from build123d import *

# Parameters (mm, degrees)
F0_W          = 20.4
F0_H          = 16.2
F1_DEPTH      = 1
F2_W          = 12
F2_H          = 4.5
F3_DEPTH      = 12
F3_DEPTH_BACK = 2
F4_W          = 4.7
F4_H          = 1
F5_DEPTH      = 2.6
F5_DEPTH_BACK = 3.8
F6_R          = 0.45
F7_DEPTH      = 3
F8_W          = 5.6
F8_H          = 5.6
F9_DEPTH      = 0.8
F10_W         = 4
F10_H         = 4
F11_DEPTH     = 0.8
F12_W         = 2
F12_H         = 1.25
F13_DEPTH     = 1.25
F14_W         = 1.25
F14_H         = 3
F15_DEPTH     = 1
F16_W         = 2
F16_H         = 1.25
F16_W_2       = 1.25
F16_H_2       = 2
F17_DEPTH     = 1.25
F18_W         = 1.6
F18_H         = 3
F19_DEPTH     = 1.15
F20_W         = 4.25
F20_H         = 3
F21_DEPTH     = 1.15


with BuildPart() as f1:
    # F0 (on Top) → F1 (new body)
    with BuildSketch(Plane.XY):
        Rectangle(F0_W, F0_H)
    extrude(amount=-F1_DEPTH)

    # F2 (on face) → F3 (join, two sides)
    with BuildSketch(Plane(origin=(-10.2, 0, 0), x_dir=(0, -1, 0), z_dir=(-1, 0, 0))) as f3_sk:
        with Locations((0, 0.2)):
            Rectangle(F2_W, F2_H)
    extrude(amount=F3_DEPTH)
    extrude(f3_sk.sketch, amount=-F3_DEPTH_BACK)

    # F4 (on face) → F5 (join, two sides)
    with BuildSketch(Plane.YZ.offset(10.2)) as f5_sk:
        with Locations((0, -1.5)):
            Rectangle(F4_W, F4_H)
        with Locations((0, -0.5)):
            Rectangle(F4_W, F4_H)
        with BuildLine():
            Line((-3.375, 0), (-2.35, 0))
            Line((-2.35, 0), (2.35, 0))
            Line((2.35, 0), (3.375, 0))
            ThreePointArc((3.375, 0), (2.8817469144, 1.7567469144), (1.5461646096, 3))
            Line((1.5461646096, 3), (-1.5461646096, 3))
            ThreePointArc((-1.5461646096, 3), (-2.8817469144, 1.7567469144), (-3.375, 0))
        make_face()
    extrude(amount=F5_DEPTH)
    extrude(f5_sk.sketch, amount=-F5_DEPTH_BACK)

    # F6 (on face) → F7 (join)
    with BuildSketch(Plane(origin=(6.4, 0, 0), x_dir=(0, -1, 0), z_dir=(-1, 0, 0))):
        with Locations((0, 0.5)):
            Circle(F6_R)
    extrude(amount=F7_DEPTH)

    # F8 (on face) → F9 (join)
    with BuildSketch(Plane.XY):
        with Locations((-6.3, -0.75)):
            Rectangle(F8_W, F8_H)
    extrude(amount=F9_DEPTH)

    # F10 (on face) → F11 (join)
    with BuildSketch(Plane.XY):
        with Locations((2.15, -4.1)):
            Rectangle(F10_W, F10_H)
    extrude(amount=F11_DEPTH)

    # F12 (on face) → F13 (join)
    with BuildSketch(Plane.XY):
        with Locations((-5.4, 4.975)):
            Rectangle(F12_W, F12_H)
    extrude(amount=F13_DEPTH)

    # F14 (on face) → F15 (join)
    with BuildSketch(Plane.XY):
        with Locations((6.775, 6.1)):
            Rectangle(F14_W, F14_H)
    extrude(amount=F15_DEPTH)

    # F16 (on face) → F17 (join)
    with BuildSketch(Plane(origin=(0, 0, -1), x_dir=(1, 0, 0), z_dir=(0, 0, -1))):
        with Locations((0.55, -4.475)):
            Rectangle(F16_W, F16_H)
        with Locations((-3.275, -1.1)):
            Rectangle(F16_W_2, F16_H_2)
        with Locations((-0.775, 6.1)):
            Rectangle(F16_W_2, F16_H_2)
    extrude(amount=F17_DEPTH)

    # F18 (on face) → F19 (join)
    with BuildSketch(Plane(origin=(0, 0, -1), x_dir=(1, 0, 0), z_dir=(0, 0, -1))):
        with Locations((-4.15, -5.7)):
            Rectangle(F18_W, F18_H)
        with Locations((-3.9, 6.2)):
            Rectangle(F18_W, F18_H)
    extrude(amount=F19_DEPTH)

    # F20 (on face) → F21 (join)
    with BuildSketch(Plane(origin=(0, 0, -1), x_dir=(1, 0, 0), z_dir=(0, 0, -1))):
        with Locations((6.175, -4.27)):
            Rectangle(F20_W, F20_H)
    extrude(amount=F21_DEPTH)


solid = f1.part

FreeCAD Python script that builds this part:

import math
import FreeCAD as App
import Part
import Sketcher
from FreeCAD import Vector

doc = App.newDocument("Part")
body = doc.addObject("PartDesign::Body", "Body")

sketch1 = body.newObject("Sketcher::SketchObject", "Sketch")
sketch1.AttachmentSupport = (doc.getObject("XY_Plane"), [""])
sketch1.MapMode = "FlatFace"
sketch1.addGeometry([
    Part.LineSegment(Vector(-10, 8, 0), Vector(-10, -8, 0)),
    Part.LineSegment(Vector(-10, -8, 0), Vector(10, -8, 0)),
    Part.LineSegment(Vector(10, -8, 0), Vector(10, 8, 0)),
    Part.LineSegment(Vector(10, 8, 0), Vector(-10, 8, 0)),
], False)
sketch1.addConstraint([
    Sketcher.Constraint("Coincident", 0, 2, 1, 1),
    Sketcher.Constraint("Coincident", 1, 2, 2, 1),
    Sketcher.Constraint("Coincident", 2, 2, 3, 1),
    Sketcher.Constraint("Coincident", 3, 2, 0, 1),
    Sketcher.Constraint("Vertical", 0),
    Sketcher.Constraint("Horizontal", 1),
    Sketcher.Constraint("Vertical", 2),
    Sketcher.Constraint("Horizontal", 3),
    Sketcher.Constraint("Symmetric", 0, 2, 2, 2, -1, 1),
    Sketcher.Constraint("DistanceX", 1, 1, 1, 2, 20.4),
    Sketcher.Constraint("DistanceY", 0, 2, 0, 1, 16.2),
])
pad1 = body.newObject("PartDesign::Pad", "Pad")
pad1.Profile = sketch1
pad1.Length = 1
pad1.Reversed = True

sketch2 = body.newObject("Sketcher::SketchObject", "Sketch001")
sketch2.AttachmentSupport = (doc.getObject("YZ_Plane"), [""])
sketch2.MapMode = "FlatFace"
sketch2.AttachmentOffset = App.Placement(Vector(0, 0, -10.2), App.Rotation())
sketch2.addGeometry([
    Part.LineSegment(Vector(6, 2.5, 0), Vector(6, -2, 0)),
    Part.LineSegment(Vector(6, -2, 0), Vector(-6, -2, 0)),
    Part.LineSegment(Vector(-6, -2, 0), Vector(-6, 2.5, 0)),
    Part.LineSegment(Vector(-6, 2.5, 0), Vector(6, 2.5, 0)),
], False)
sketch2.addConstraint([
    Sketcher.Constraint("Coincident", 0, 2, 1, 1),
    Sketcher.Constraint("Coincident", 1, 2, 2, 1),
    Sketcher.Constraint("Coincident", 2, 2, 3, 1),
    Sketcher.Constraint("Coincident", 3, 2, 0, 1),
    Sketcher.Constraint("Vertical", 0),
    Sketcher.Constraint("Horizontal", 1),
    Sketcher.Constraint("Vertical", 2),
    Sketcher.Constraint("Horizontal", 3),
    Sketcher.Constraint("DistanceX", 1, 2, 1, 1, 12.0),
    Sketcher.Constraint("DistanceY", 0, 2, 0, 1, 4.5),
    Sketcher.Constraint("DistanceX", -1, 1, 0, 2, 6.0),
    Sketcher.Constraint("DistanceY", 0, 2, -1, 1, 2.05),
])
pad2 = body.newObject("PartDesign::Pad", "Pad001")
pad2.Profile = sketch2
pad2.Type = "TwoLengths"
pad2.Length = 12
pad2.Length2 = 2
pad2.Reversed = True

sketch3 = body.newObject("Sketcher::SketchObject", "Sketch002")
sketch3.AttachmentSupport = (doc.getObject("YZ_Plane"), [""])
sketch3.MapMode = "FlatFace"
sketch3.AttachmentOffset = App.Placement(Vector(0, 0, 10.2), App.Rotation())
sketch3.addGeometry([
    Part.LineSegment(Vector(-2.4, -2, 0), Vector(2.4, -2, 0)),
    Part.LineSegment(Vector(2.4, -2, 0), Vector(2.4, 0, 0)),
    Part.LineSegment(Vector(2.4, 0, 0), Vector(3.4, 0, 0)),
    Part.ArcOfCircle(Part.Circle(Vector(0, 0, 0), Vector(0, 0, 1), 3.4), math.radians(0), math.radians(63)),
    Part.LineSegment(Vector(1.5, 3, 0), Vector(-1.5, 3, 0)),
    Part.ArcOfCircle(Part.Circle(Vector(0, 0, 0), Vector(0, 0, 1), 3.4), math.radians(117), math.radians(180)),
    Part.LineSegment(Vector(-3.4, 0, 0), Vector(-2.4, 0, 0)),
    Part.LineSegment(Vector(-2.4, 0, 0), Vector(-2.4, -2, 0)),
], False)
sketch3.addConstraint([
    Sketcher.Constraint("Coincident", 0, 2, 1, 1),
    Sketcher.Constraint("Coincident", 1, 2, 2, 1),
    Sketcher.Constraint("Coincident", 2, 2, 3, 1),
    Sketcher.Constraint("Coincident", 3, 2, 4, 1),
    Sketcher.Constraint("Coincident", 4, 2, 5, 1),
    Sketcher.Constraint("Coincident", 5, 2, 6, 1),
    Sketcher.Constraint("Coincident", 6, 2, 7, 1),
    Sketcher.Constraint("Coincident", 7, 2, 0, 1),
    Sketcher.Constraint("Horizontal", 0),
    Sketcher.Constraint("Vertical", 1),
    Sketcher.Constraint("Horizontal", 2),
    Sketcher.Constraint("Horizontal", 4),
    Sketcher.Constraint("Horizontal", 6),
    Sketcher.Constraint("Vertical", 7),
    Sketcher.Constraint("Coincident", 3, 3, -1, 1),
    Sketcher.Constraint("Coincident", 5, 3, -1, 1),
    Sketcher.Constraint("Equal", 3, 5),
    Sketcher.Constraint("Symmetric", 1, 2, 6, 2, -1, 1),
    Sketcher.Constraint("PointOnObject", 1, 2, -1),
    Sketcher.Constraint("DistanceY", 1, 1, 1, 2, 2.0),
    Sketcher.Constraint("DistanceX", 0, 1, 0, 2, 4.7),
    Sketcher.Constraint("DistanceY", -1, 1, 3, 2, 3.0),
    Sketcher.Constraint("Radius", 3, 3.375),
])
pad3 = body.newObject("PartDesign::Pad", "Pad002")
pad3.Profile = sketch3
pad3.Type = "TwoLengths"
pad3.Length = 2.6
pad3.Length2 = 3.8

sketch4 = body.newObject("Sketcher::SketchObject", "Sketch003")
sketch4.AttachmentSupport = (doc.getObject("YZ_Plane"), [""])
sketch4.MapMode = "FlatFace"
sketch4.AttachmentOffset = App.Placement(Vector(0, 0, 6.4), App.Rotation())
sketch4.addGeometry(Part.Circle(Vector(0, 0.5, 0), Vector(0, 0, 1), 0.45), False)
sketch4.addConstraint([
    Sketcher.Constraint("PointOnObject", 0, 3, -2),
    Sketcher.Constraint("Diameter", 0, 0.9),
    Sketcher.Constraint("DistanceY", -1, 1, 0, 3, 0.5),
])
pad4 = body.newObject("PartDesign::Pad", "Pad003")
pad4.Profile = sketch4
pad4.Length = 3
pad4.Reversed = True

sketch5 = body.newObject("Sketcher::SketchObject", "Sketch004")
sketch5.AttachmentSupport = (doc.getObject("XY_Plane"), [""])
sketch5.MapMode = "FlatFace"
sketch5.addGeometry([
    Part.LineSegment(Vector(-9, 2, 0), Vector(-9, -4, 0)),
    Part.LineSegment(Vector(-9, -4, 0), Vector(-4, -4, 0)),
    Part.LineSegment(Vector(-4, -4, 0), Vector(-4, 2, 0)),
    Part.LineSegment(Vector(-4, 2, 0), Vector(-9, 2, 0)),
], False)
sketch5.addConstraint([
    Sketcher.Constraint("Coincident", 0, 2, 1, 1),
    Sketcher.Constraint("Coincident", 1, 2, 2, 1),
    Sketcher.Constraint("Coincident", 2, 2, 3, 1),
    Sketcher.Constraint("Coincident", 3, 2, 0, 1),
    Sketcher.Constraint("Vertical", 0),
    Sketcher.Constraint("Horizontal", 1),
    Sketcher.Constraint("Vertical", 2),
    Sketcher.Constraint("Horizontal", 3),
    Sketcher.Constraint("Equal", 3, 0),
    Sketcher.Constraint("DistanceX", 1, 1, 1, 2, 5.6),
    Sketcher.Constraint("DistanceX", 0, 2, -1, 1, 9.1),
    Sketcher.Constraint("DistanceY", 0, 2, -1, 1, 3.55),
])
pad5 = body.newObject("PartDesign::Pad", "Pad004")
pad5.Profile = sketch5
pad5.Length = 0.8

sketch6 = body.newObject("Sketcher::SketchObject", "Sketch005")
sketch6.AttachmentSupport = (doc.getObject("XY_Plane"), [""])
sketch6.MapMode = "FlatFace"
sketch6.addGeometry([
    Part.LineSegment(Vector(0.1, -2.1, 0), Vector(0.1, -6.1, 0)),
    Part.LineSegment(Vector(0.1, -6.1, 0), Vector(4.2, -6.1, 0)),
    Part.LineSegment(Vector(4.2, -6.1, 0), Vector(4.2, -2.1, 0)),
    Part.LineSegment(Vector(4.2, -2.1, 0), Vector(0.1, -2.1, 0)),
], False)
sketch6.addConstraint([
    Sketcher.Constraint("Coincident", 0, 2, 1, 1),
    Sketcher.Constraint("Coincident", 1, 2, 2, 1),
    Sketcher.Constraint("Coincident", 2, 2, 3, 1),
    Sketcher.Constraint("Coincident", 3, 2, 0, 1),
    Sketcher.Constraint("Vertical", 0),
    Sketcher.Constraint("Horizontal", 1),
    Sketcher.Constraint("Vertical", 2),
    Sketcher.Constraint("Horizontal", 3),
    Sketcher.Constraint("Equal", 3, 0),
    Sketcher.Constraint("DistanceX", 1, 1, 1, 2, 4.0),
    Sketcher.Constraint("DistanceY", 0, 2, -1, 1, 6.1),
    Sketcher.Constraint("DistanceX", -1, 1, 0, 2, 0.15),
])
pad6 = body.newObject("PartDesign::Pad", "Pad005")
pad6.Profile = sketch6
pad6.Length = 0.8

sketch7 = body.newObject("Sketcher::SketchObject", "Sketch006")
sketch7.AttachmentSupport = (doc.getObject("XY_Plane"), [""])
sketch7.MapMode = "FlatFace"
sketch7.addGeometry([
    Part.LineSegment(Vector(-6.4, 5.6, 0), Vector(-6.4, 4.3, 0)),
    Part.LineSegment(Vector(-6.4, 4.3, 0), Vector(-4.4, 4.3, 0)),
    Part.LineSegment(Vector(-4.4, 4.3, 0), Vector(-4.4, 5.6, 0)),
    Part.LineSegment(Vector(-4.4, 5.6, 0), Vector(-6.4, 5.6, 0)),
], False)
sketch7.addConstraint([
    Sketcher.Constraint("Coincident", 0, 2, 1, 1),
    Sketcher.Constraint("Coincident", 1, 2, 2, 1),
    Sketcher.Constraint("Coincident", 2, 2, 3, 1),
    Sketcher.Constraint("Coincident", 3, 2, 0, 1),
    Sketcher.Constraint("Vertical", 0),
    Sketcher.Constraint("Horizontal", 1),
    Sketcher.Constraint("Vertical", 2),
    Sketcher.Constraint("Horizontal", 3),
    Sketcher.Constraint("DistanceX", 1, 1, 1, 2, 2.0),
    Sketcher.Constraint("DistanceY", 0, 2, 0, 1, 1.25),
    Sketcher.Constraint("DistanceX", 0, 2, -1, 1, 6.4),
    Sketcher.Constraint("DistanceY", -1, 1, 2, 2, 5.6),
])
pad7 = body.newObject("PartDesign::Pad", "Pad006")
pad7.Profile = sketch7
pad7.Length = 1.25

sketch8 = body.newObject("Sketcher::SketchObject", "Sketch007")
sketch8.AttachmentSupport = (doc.getObject("XY_Plane"), [""])
sketch8.MapMode = "FlatFace"
sketch8.addGeometry([
    Part.LineSegment(Vector(6.2, 7.6, 0), Vector(6.2, 4.6, 0)),
    Part.LineSegment(Vector(6.2, 4.6, 0), Vector(7.4, 4.6, 0)),
    Part.LineSegment(Vector(7.4, 4.6, 0), Vector(7.4, 7.6, 0)),
    Part.LineSegment(Vector(7.4, 7.6, 0), Vector(6.2, 7.6, 0)),
], False)
sketch8.addConstraint([
    Sketcher.Constraint("Coincident", 0, 2, 1, 1),
    Sketcher.Constraint("Coincident", 1, 2, 2, 1),
    Sketcher.Constraint("Coincident", 2, 2, 3, 1),
    Sketcher.Constraint("Coincident", 3, 2, 0, 1),
    Sketcher.Constraint("Vertical", 0),
    Sketcher.Constraint("Horizontal", 1),
    Sketcher.Constraint("Vertical", 2),
    Sketcher.Constraint("Horizontal", 3),
    Sketcher.Constraint("DistanceY", 0, 2, 0, 1, 3.0),
    Sketcher.Constraint("DistanceX", 1, 1, 1, 2, 1.25),
    Sketcher.Constraint("DistanceY", -1, 1, 0, 2, 4.6),
    Sketcher.Constraint("DistanceX", -1, 1, 1, 2, 7.4),
])
pad8 = body.newObject("PartDesign::Pad", "Pad007")
pad8.Profile = sketch8
pad8.Length = 1

sketch9 = body.newObject("Sketcher::SketchObject", "Sketch008")
sketch9.AttachmentSupport = (doc.getObject("XY_Plane"), [""])
sketch9.MapMode = "FlatFace"
sketch9.AttachmentOffset = App.Placement(Vector(0, 0, -1), App.Rotation())
sketch9.addGeometry([
    Part.LineSegment(Vector(-0.5, 3.9, 0), Vector(-0.5, 5.1, 0)),
    Part.LineSegment(Vector(-0.5, 5.1, 0), Vector(1.6, 5.1, 0)),
    Part.LineSegment(Vector(1.6, 5.1, 0), Vector(1.6, 3.9, 0)),
    Part.LineSegment(Vector(1.6, 3.9, 0), Vector(-0.5, 3.9, 0)),
    Part.LineSegment(Vector(-3.9, 0.1, 0), Vector(-3.9, 2.1, 0)),
    Part.LineSegment(Vector(-3.9, 2.1, 0), Vector(-2.6, 2.1, 0)),
    Part.LineSegment(Vector(-2.6, 2.1, 0), Vector(-2.6, 0.1, 0)),
    Part.LineSegment(Vector(-2.6, 0.1, 0), Vector(-3.9, 0.1, 0)),
    Part.LineSegment(Vector(-1.4, -7.1, 0), Vector(-1.4, -5.1, 0)),
    Part.LineSegment(Vector(-1.4, -5.1, 0), Vector(-0.1, -5.1, 0)),
    Part.LineSegment(Vector(-0.1, -5.1, 0), Vector(-0.1, -7.1, 0)),
    Part.LineSegment(Vector(-0.1, -7.1, 0), Vector(-1.4, -7.1, 0)),
], False)
sketch9.addConstraint([
    Sketcher.Constraint("Coincident", 0, 2, 1, 1),
    Sketcher.Constraint("Coincident", 1, 2, 2, 1),
    Sketcher.Constraint("Coincident", 2, 2, 3, 1),
    Sketcher.Constraint("Coincident", 3, 2, 0, 1),
    Sketcher.Constraint("Coincident", 4, 2, 5, 1),
    Sketcher.Constraint("Coincident", 5, 2, 6, 1),
    Sketcher.Constraint("Coincident", 6, 2, 7, 1),
    Sketcher.Constraint("Coincident", 7, 2, 4, 1),
    Sketcher.Constraint("Coincident", 8, 2, 9, 1),
    Sketcher.Constraint("Coincident", 9, 2, 10, 1),
    Sketcher.Constraint("Coincident", 10, 2, 11, 1),
    Sketcher.Constraint("Coincident", 11, 2, 8, 1),
    Sketcher.Constraint("Vertical", 0),
    Sketcher.Constraint("Horizontal", 1),
    Sketcher.Constraint("Vertical", 2),
    Sketcher.Constraint("Horizontal", 3),
    Sketcher.Constraint("Vertical", 4),
    Sketcher.Constraint("Horizontal", 5),
    Sketcher.Constraint("Vertical", 6),
    Sketcher.Constraint("Horizontal", 7),
    Sketcher.Constraint("Vertical", 8),
    Sketcher.Constraint("Horizontal", 9),
    Sketcher.Constraint("Vertical", 10),
    Sketcher.Constraint("Horizontal", 11),
    Sketcher.Constraint("Equal", 7, 9),
    Sketcher.Constraint("Equal", 11, 0),
    Sketcher.Constraint("Equal", 3, 4),
    Sketcher.Constraint("Equal", 6, 8),
    Sketcher.Constraint("DistanceX", 1, 1, 1, 2, 2.0),
    Sketcher.Constraint("DistanceY", 4, 2, 0, 2, 3.0),
    Sketcher.Constraint("DistanceX", 5, 1, 5, 2, 1.25),
    Sketcher.Constraint("DistanceY", -1, 1, 0, 2, 5.1),
    Sketcher.Constraint("DistanceX", 4, 2, -1, 1, 3.9),
    Sketcher.Constraint("DistanceX", 8, 2, -1, 1, 1.4),
    Sketcher.Constraint("DistanceY", 8, 2, -1, 1, 5.1),
    Sketcher.Constraint("DistanceX", 5, 2, 3, 2, 2.2),
])
pad9 = body.newObject("PartDesign::Pad", "Pad008")
pad9.Profile = sketch9
pad9.Length = 1.25
pad9.Reversed = True

sketch10 = body.newObject("Sketcher::SketchObject", "Sketch009")
sketch10.AttachmentSupport = (doc.getObject("XY_Plane"), [""])
sketch10.MapMode = "FlatFace"
sketch10.AttachmentOffset = App.Placement(Vector(0, 0, -1), App.Rotation())
sketch10.addGeometry([
    Part.LineSegment(Vector(-5, 4.2, 0), Vector(-5, 7.2, 0)),
    Part.LineSegment(Vector(-5, 7.2, 0), Vector(-3.4, 7.2, 0)),
    Part.LineSegment(Vector(-3.4, 7.2, 0), Vector(-3.4, 4.2, 0)),
    Part.LineSegment(Vector(-3.4, 4.2, 0), Vector(-5, 4.2, 0)),
    Part.LineSegment(Vector(-4.7, -7.7, 0), Vector(-4.7, -4.7, 0)),
    Part.LineSegment(Vector(-4.7, -4.7, 0), Vector(-3.1, -4.7, 0)),
    Part.LineSegment(Vector(-3.1, -4.7, 0), Vector(-3.1, -7.7, 0)),
    Part.LineSegment(Vector(-3.1, -7.7, 0), Vector(-4.7, -7.7, 0)),
], False)
sketch10.addConstraint([
    Sketcher.Constraint("Coincident", 0, 2, 1, 1),
    Sketcher.Constraint("Coincident", 1, 2, 2, 1),
    Sketcher.Constraint("Coincident", 2, 2, 3, 1),
    Sketcher.Constraint("Coincident", 3, 2, 0, 1),
    Sketcher.Constraint("Coincident", 4, 2, 5, 1),
    Sketcher.Constraint("Coincident", 5, 2, 6, 1),
    Sketcher.Constraint("Coincident", 6, 2, 7, 1),
    Sketcher.Constraint("Coincident", 7, 2, 4, 1),
    Sketcher.Constraint("Vertical", 0),
    Sketcher.Constraint("Horizontal", 1),
    Sketcher.Constraint("Vertical", 2),
    Sketcher.Constraint("Horizontal", 3),
    Sketcher.Constraint("Vertical", 4),
    Sketcher.Constraint("Horizontal", 5),
    Sketcher.Constraint("Vertical", 6),
    Sketcher.Constraint("Horizontal", 7),
    Sketcher.Constraint("Equal", 3, 5),
    Sketcher.Constraint("Equal", 2, 4),
    Sketcher.Constraint("DistanceY", 0, 1, 0, 2, 3.0),
    Sketcher.Constraint("DistanceX", 1, 1, 1, 2, 1.6),
    Sketcher.Constraint("DistanceY", -1, 1, 0, 2, 7.2),
    Sketcher.Constraint("DistanceX", 4, 2, -1, 1, 4.7),
    Sketcher.Constraint("DistanceY", 4, 2, -1, 1, 4.7),
    Sketcher.Constraint("DistanceX", 0, 2, -1, 1, 4.95),
])
pad10 = body.newObject("PartDesign::Pad", "Pad009")
pad10.Profile = sketch10
pad10.Length = 1.15
pad10.Reversed = True

sketch11 = body.newObject("Sketcher::SketchObject", "Sketch010")
sketch11.AttachmentSupport = (doc.getObject("XY_Plane"), [""])
sketch11.MapMode = "FlatFace"
sketch11.AttachmentOffset = App.Placement(Vector(0, 0, -1), App.Rotation())
sketch11.addGeometry([
    Part.LineSegment(Vector(4, 2.8, 0), Vector(4, 5.8, 0)),
    Part.LineSegment(Vector(4, 5.8, 0), Vector(8.3, 5.8, 0)),
    Part.LineSegment(Vector(8.3, 5.8, 0), Vector(8.3, 2.8, 0)),
    Part.LineSegment(Vector(8.3, 2.8, 0), Vector(4, 2.8, 0)),
], False)
sketch11.addConstraint([
    Sketcher.Constraint("Coincident", 0, 2, 1, 1),
    Sketcher.Constraint("Coincident", 1, 2, 2, 1),
    Sketcher.Constraint("Coincident", 2, 2, 3, 1),
    Sketcher.Constraint("Coincident", 3, 2, 0, 1),
    Sketcher.Constraint("Vertical", 0),
    Sketcher.Constraint("Horizontal", 1),
    Sketcher.Constraint("Vertical", 2),
    Sketcher.Constraint("Horizontal", 3),
    Sketcher.Constraint("DistanceY", 0, 1, 0, 2, 3.0),
    Sketcher.Constraint("DistanceX", 1, 1, 1, 2, 4.25),
    Sketcher.Constraint("DistanceX", -1, 1, 1, 2, 8.3),
    Sketcher.Constraint("DistanceY", -1, 1, 0, 2, 5.77),
])
pad11 = body.newObject("PartDesign::Pad", "Pad010")
pad11.Profile = sketch11
pad11.Length = 1.15
pad11.Reversed = True

doc.recompute()
